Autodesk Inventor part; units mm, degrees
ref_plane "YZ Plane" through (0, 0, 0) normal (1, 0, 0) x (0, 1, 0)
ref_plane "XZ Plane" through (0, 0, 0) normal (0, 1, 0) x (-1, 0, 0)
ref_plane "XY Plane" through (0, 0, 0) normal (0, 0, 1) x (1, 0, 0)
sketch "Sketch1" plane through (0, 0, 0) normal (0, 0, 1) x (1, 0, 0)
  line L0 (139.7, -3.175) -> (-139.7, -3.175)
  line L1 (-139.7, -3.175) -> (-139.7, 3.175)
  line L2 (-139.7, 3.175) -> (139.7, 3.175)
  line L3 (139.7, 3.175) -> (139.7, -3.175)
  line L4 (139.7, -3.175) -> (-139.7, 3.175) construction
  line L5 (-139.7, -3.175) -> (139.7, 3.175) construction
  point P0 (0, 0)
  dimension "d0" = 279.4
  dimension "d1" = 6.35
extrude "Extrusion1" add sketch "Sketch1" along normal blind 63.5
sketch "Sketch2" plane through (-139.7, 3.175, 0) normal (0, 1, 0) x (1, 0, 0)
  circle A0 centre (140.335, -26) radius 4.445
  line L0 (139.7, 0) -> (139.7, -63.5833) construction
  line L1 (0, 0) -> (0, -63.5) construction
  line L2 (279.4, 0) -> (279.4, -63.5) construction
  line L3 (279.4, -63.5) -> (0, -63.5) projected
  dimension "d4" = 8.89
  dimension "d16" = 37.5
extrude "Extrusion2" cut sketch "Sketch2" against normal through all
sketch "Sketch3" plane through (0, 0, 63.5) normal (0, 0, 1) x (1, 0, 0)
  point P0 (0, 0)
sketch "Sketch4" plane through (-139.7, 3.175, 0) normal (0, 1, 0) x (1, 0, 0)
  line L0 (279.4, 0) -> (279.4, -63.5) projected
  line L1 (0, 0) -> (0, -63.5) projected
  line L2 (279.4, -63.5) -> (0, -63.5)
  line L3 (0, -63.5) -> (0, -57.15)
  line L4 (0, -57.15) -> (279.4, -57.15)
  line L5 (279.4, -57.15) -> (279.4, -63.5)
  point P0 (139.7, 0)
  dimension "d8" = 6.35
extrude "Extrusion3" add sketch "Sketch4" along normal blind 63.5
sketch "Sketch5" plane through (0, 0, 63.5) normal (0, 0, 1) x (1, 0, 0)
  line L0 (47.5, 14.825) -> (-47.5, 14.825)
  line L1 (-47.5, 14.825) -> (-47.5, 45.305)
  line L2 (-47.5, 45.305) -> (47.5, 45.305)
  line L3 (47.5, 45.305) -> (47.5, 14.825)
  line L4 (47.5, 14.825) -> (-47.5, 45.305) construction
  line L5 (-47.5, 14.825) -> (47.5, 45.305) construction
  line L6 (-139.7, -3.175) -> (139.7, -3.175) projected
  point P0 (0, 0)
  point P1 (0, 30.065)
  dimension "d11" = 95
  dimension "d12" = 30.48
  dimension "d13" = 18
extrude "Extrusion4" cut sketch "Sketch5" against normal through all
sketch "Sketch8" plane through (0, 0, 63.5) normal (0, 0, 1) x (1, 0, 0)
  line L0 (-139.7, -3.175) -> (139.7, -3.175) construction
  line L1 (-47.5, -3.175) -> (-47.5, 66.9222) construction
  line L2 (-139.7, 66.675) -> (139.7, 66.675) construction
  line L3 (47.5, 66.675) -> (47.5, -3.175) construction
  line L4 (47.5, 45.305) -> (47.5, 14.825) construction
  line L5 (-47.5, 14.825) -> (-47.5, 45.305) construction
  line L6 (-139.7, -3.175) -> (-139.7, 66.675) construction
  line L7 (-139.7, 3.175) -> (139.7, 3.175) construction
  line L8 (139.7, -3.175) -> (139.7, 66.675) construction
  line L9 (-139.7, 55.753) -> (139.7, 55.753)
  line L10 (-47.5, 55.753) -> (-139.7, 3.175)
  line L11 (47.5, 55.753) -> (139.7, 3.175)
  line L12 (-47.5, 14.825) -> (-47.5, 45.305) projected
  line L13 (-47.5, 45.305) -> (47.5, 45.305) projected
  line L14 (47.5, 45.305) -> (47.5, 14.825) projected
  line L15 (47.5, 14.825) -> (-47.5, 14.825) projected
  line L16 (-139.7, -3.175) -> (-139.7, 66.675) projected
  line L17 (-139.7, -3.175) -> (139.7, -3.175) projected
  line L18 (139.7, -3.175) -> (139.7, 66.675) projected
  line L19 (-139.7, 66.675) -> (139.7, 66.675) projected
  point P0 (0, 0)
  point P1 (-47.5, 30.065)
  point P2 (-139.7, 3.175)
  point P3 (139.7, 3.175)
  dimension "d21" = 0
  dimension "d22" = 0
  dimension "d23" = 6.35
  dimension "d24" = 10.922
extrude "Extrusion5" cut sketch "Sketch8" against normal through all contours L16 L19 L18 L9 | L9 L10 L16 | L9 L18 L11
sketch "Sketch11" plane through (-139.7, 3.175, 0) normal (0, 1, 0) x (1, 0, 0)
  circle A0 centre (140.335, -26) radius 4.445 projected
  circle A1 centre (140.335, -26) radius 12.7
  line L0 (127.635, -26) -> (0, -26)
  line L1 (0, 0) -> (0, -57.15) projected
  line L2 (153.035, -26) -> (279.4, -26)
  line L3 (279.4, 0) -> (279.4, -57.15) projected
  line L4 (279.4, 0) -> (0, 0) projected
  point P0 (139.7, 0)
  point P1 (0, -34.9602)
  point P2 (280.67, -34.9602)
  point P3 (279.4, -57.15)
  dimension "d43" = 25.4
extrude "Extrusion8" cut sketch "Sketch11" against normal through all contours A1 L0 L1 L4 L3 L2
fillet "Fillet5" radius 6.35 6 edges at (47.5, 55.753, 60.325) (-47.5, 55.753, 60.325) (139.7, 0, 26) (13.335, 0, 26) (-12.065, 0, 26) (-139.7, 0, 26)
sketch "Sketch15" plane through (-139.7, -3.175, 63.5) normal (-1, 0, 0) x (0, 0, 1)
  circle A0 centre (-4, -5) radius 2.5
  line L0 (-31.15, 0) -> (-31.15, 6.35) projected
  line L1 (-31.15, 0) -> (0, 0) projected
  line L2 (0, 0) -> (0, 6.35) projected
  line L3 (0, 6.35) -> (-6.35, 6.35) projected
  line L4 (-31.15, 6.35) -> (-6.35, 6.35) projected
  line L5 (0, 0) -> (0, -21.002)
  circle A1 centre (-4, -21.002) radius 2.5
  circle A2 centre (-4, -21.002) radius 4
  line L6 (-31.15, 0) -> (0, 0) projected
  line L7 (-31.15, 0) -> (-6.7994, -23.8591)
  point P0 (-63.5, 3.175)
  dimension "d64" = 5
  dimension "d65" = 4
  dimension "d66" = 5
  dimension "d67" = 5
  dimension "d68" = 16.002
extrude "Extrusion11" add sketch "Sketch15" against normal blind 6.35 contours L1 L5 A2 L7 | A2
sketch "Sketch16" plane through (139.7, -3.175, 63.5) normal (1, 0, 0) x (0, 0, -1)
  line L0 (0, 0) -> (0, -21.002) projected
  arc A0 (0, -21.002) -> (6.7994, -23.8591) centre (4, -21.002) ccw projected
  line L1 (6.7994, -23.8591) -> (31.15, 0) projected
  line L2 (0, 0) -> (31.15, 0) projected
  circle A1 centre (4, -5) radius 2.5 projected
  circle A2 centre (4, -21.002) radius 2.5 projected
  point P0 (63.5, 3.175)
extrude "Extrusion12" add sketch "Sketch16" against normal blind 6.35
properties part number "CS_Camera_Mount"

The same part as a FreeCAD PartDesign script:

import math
import FreeCAD as App
import Part
import Sketcher
from FreeCAD import Vector
Q = App.Units.Quantity


def edges_at(feature, points):
    """Names of the edges that pass closest to the given points."""
    edges = feature.Shape.Edges
    near = lambda p: min(range(len(edges)), key=lambda i: edges[i].distToShape(Part.Vertex(*p))[0])
    return sorted({f"Edge{near(p) + 1}" for p in points})


def add_polygon(sketch, points):
    """Adds a closed chain of lines whose ends are joined by coincident constraints."""
    first, n = sketch.GeometryCount, len(points)
    for a, b in zip(points, points[1:] + points[:1]):
        sketch.addGeometry(Part.LineSegment(App.Vector(*a, 0), App.Vector(*b, 0)), False)
    for i in range(n):
        sketch.addConstraint(Sketcher.Constraint("Coincident", first + i, 2, first + (i + 1) % n, 1))

doc = App.newDocument("Part")
body = doc.addObject("PartDesign::Body", "Body")

sketch1 = body.newObject("Sketcher::SketchObject", "Sketch")
sketch1.AttachmentSupport = (doc.getObject("XY_Plane"), [""])
sketch1.MapMode = "FlatFace"
add_polygon(sketch1, [(-140, -3), (140, -3), (140, 3), (-140, 3)])
sketch1.addConstraint([
    Sketcher.Constraint("Horizontal", 0),
    Sketcher.Constraint("Vertical", 1),
    Sketcher.Constraint("Horizontal", 2),
    Sketcher.Constraint("Vertical", 3),
    Sketcher.Constraint("Symmetric", 0, 2, 2, 2, -1, 1),
    Sketcher.Constraint("DistanceX", 0, 1, 0, 2, Q("11 in")),
    Sketcher.Constraint("DistanceY", 1, 1, 1, 2, Q("0.25 in")),
])
pad1 = body.newObject("PartDesign::Pad", "Pad")
pad1.Profile = sketch1
pad1.Length = Q("2.5 in")

sketch2 = body.newObject("Sketcher::SketchObject", "Sketch001")
sketch2.AttachmentSupport = (doc.getObject("XZ_Plane"), [""])
sketch2.MapMode = "FlatFace"
sketch2.AttachmentOffset = App.Placement(Vector(0, 0, -0.125 * 25.4), App.Rotation())
sketch2.addGeometry(Part.Circle(Vector(0.6, 26, 0), Vector(0, 0, 1), 4.4), False)
sketch2.addConstraint([
    Sketcher.Constraint("Diameter", 0, Q("0.35 in")),
    Sketcher.Constraint("DistanceX", -1, 1, 0, 3, Q("0.025 in")),
    Sketcher.Constraint("DistanceY", -1, 1, 0, 3, 26.0),
])
pocket1 = body.newObject("PartDesign::Pocket", "Pocket")
pocket1.Profile = sketch2
pocket1.Type = "ThroughAll"
pocket1.Reversed = True

sketch3 = body.newObject("Sketcher::SketchObject", "Sketch002")
sketch3.AttachmentSupport = (doc.getObject("XZ_Plane"), [""])
sketch3.MapMode = "FlatFace"
sketch3.AttachmentOffset = App.Placement(Vector(0, 0, -0.125 * 25.4), App.Rotation())
add_polygon(sketch3, [(140, 64), (140, 57), (-140, 57), (-140, 64)])
sketch3.addConstraint([
    Sketcher.Constraint("Vertical", 0),
    Sketcher.Constraint("Horizontal", 1),
    Sketcher.Constraint("Vertical", 2),
    Sketcher.Constraint("Horizontal", 3),
    Sketcher.Constraint("DistanceY", 0, 2, 0, 1, Q("0.25 in")),
    Sketcher.Constraint("DistanceX", 1, 2, 1, 1, Q("11 in")),
    Sketcher.Constraint("DistanceX", -1, 1, 0, 2, Q("5.5 in")),
    Sketcher.Constraint("DistanceY", -1, 1, 2, 2, Q("2.5 in")),
])
pad2 = body.newObject("PartDesign::Pad", "Pad001")
pad2.Profile = sketch3
pad2.Length = Q("2.5 in")
pad2.Reversed = True

sketch4 = body.newObject("Sketcher::SketchObject", "Sketch003")
sketch4.AttachmentSupport = (doc.getObject("XY_Plane"), [""])
sketch4.MapMode = "FlatFace"
sketch4.AttachmentOffset = App.Placement(Vector(0, 0, 2.5 * 25.4), App.Rotation())
add_polygon(sketch4, [(-48, 15), (48, 15), (48, 45), (-48, 45)])
sketch4.addConstraint([
    Sketcher.Constraint("Horizontal", 0),
    Sketcher.Constraint("Vertical", 1),
    Sketcher.Constraint("Horizontal", 2),
    Sketcher.Constraint("Vertical", 3),
    Sketcher.Constraint("DistanceY", 1, 1, 1, 2, Q("1.2 in")),
    Sketcher.Constraint("DistanceX", 0, 1, 0, 2, 95.0),
    Sketcher.Constraint("DistanceX", -1, 1, 0, 2, 47.5),
    Sketcher.Constraint("DistanceY", -1, 1, 0, 2, 14.825),
])
pocket2 = body.newObject("PartDesign::Pocket", "Pocket001")
pocket2.Profile = sketch4
pocket2.Type = "ThroughAll"

sketch5 = body.newObject("Sketcher::SketchObject", "Sketch004")
sketch5.AttachmentSupport = (doc.getObject("XY_Plane"), [""])
sketch5.MapMode = "FlatFace"
sketch5.AttachmentOffset = App.Placement(Vector(0, 0, 2.5 * 25.4), App.Rotation())
add_polygon(sketch5, [(-140, 67), (-140, 3), (-48, 56), (48, 56), (140, 3), (140, 67)])
sketch5.addConstraint([
    Sketcher.Constraint("Vertical", 0),
    Sketcher.Constraint("Horizontal", 2),
    Sketcher.Constraint("Vertical", 4),
    Sketcher.Constraint("Horizontal", 5),
    Sketcher.Constraint("Symmetric", 0, 2, 3, 2, -2),
    Sketcher.Constraint("Equal", 1, 3),
    Sketcher.Constraint("DistanceX", 5, 2, 5, 1, Q("11 in")),
    Sketcher.Constraint("DistanceY", 2, 2, 4, 2, Q("0.43 in")),
    Sketcher.Constraint("DistanceY", 0, 2, 0, 1, Q("2.5 in")),
    Sketcher.Constraint("DistanceY", -1, 1, 0, 2, Q("0.125 in")),
    Sketcher.Constraint("DistanceX", 2, 1, 2, 2, 95.0),
])
pocket3 = body.newObject("PartDesign::Pocket", "Pocket002")
pocket3.Profile = sketch5
pocket3.Type = "ThroughAll"

sketch6 = body.newObject("Sketcher::SketchObject", "Sketch005")
sketch6.AttachmentSupport = (doc.getObject("XZ_Plane"), [""])
sketch6.MapMode = "FlatFace"
sketch6.AttachmentOffset = App.Placement(Vector(0, 0, -0.125 * 25.4), App.Rotation())
sketch6.addGeometry([
    Part.ArcOfCircle(Part.Circle(Vector(1, 26, 0), Vector(0, 0, 1), 13), math.radians(180), math.radians(360)),
    Part.LineSegment(Vector(13, 26, 0), Vector(140, 26, 0)),
    Part.LineSegment(Vector(140, 26, 0), Vector(140, 0, 0)),
    Part.LineSegment(Vector(140, 0, 0), Vector(-140, 0, 0)),
    Part.LineSegment(Vector(-140, 0, 0), Vector(-140, 26, 0)),
    Part.LineSegment(Vector(-140, 26, 0), Vector(-12, 26, 0)),
], False)
sketch6.addConstraint([
    Sketcher.Constraint("Coincident", 0, 2, 1, 1),
    Sketcher.Constraint("Coincident", 1, 2, 2, 1),
    Sketcher.Constraint("Coincident", 2, 2, 3, 1),
    Sketcher.Constraint("Coincident", 3, 2, 4, 1),
    Sketcher.Constraint("Coincident", 4, 2, 5, 1),
    Sketcher.Constraint("Coincident", 5, 2, 0, 1),
    Sketcher.Constraint("Horizontal", 1),
    Sketcher.Constraint("Vertical", 2),
    Sketcher.Constraint("Horizontal", 3),
    Sketcher.Constraint("Vertical", 4),
    Sketcher.Constraint("Horizontal", 5),
    Sketcher.Constraint("Symmetric", 2, 2, 3, 2, -1, 1),
    Sketcher.Constraint("Horizontal", 1, 2, 4, 2),
    Sketcher.Constraint("Radius", 0, Q("0.5 in")),
    Sketcher.Constraint("DistanceX", 3, 2, 3, 1, Q("11 in")),
    Sketcher.Constraint("DistanceX", 1, 1, 1, 2, Q("4.975 in")),
    Sketcher.Constraint("DistanceY", 2, 2, 2, 1, 26.0),
    Sketcher.Constraint("DistanceY", -1, 1, 0, 3, 26.0),
])
pocket4 = body.newObject("PartDesign::Pocket", "Pocket003")
pocket4.Profile = sketch6
pocket4.Type = "ThroughAll"
pocket4.Reversed = True
doc.recompute()

fillet = body.newObject("PartDesign::Fillet", "Fillet")
fillet.Base = (pocket4, edges_at(pocket4, [
    (47.5, 55.753, 60.325),
    (-47.5, 55.753, 60.325),
    (139.7, 0, 26),
    (13.335, 0, 26),
    (-12.065, 0, 26),
    (-139.7, 0, 26),
]))
fillet.Radius = Q("0.25 in")

sketch7 = body.newObject("Sketcher::SketchObject", "Sketch006")
sketch7.AttachmentSupport = (doc.getObject("YZ_Plane"), [""])
sketch7.MapMode = "FlatFace"
sketch7.AttachmentOffset = App.Placement(Vector(0, 0, -5.5 * 25.4), App.Rotation())
sketch7.addGeometry([
    Part.LineSegment(Vector(-3.2, 63.5, 0), Vector(-3.2, 32.4, 0)),
    Part.LineSegment(Vector(-3.2, 32.4, 0), Vector(-27, 56.7, 0)),
    Part.ArcOfCircle(Part.Circle(Vector(-24.2, 59.5, 0), Vector(0, 0, 1), 4), math.radians(90), math.radians(224)),
    Part.LineSegment(Vector(-24.2, 63.5, 0), Vector(-3.2, 63.5, 0)),
    Part.Circle(Vector(-8.2, 59.5, 0), Vector(0, 0, 1), 2.5),
    Part.Circle(Vector(-24.2, 59.5, 0), Vector(0, 0, 1), 2.5),
], False)
sketch7.addConstraint([
    Sketcher.Constraint("Coincident", 0, 2, 1, 1),
    Sketcher.Constraint("Tangent", 1, 2, 2, 2),
    Sketcher.Constraint("Tangent", 2, 1, 3, 1),
    Sketcher.Constraint("Coincident", 3, 2, 0, 1),
    Sketcher.Constraint("Vertical", 0),
    Sketcher.Constraint("Horizontal", 3),
    Sketcher.Constraint("Coincident", 5, 3, 2, 3),
    Sketcher.Constraint("Equal", 4, 5),
    Sketcher.Constraint("Horizontal", 2, 3, 4, 3),
    Sketcher.Constraint("Diameter", 4, 5.0),
    Sketcher.Constraint("Radius", 2, 4.0),
    Sketcher.Constraint("DistanceX", 2, 3, 4, 3, Q("0.63 in")),
    Sketcher.Constraint("DistanceY", -1, 1, 2, 1, Q("2.5 in")),
    Sketcher.Constraint("DistanceX", 4, 3, 0, 2, 5.0),
    Sketcher.Constraint("DistanceX", 0, 2, -1, 1, Q("0.125 in")),
    Sketcher.Constraint("DistanceY", 0, 2, 0, 1, 31.15),
])
pad3 = body.newObject("PartDesign::Pad", "Pad002")
pad3.Profile = sketch7
pad3.Length = Q("0.25 in")

sketch8 = body.newObject("Sketcher::SketchObject", "Sketch007")
sketch8.AttachmentSupport = (doc.getObject("YZ_Plane"), [""])
sketch8.MapMode = "FlatFace"
sketch8.AttachmentOffset = App.Placement(Vector(0, 0, 5.5 * 25.4), App.Rotation())
sketch8.addGeometry([
    Part.LineSegment(Vector(-3.2, 32.4, 0), Vector(-3.2, 63.5, 0)),
    Part.LineSegment(Vector(-3.2, 63.5, 0), Vector(-24.2, 63.5, 0)),
    Part.ArcOfCircle(Part.Circle(Vector(-24.2, 59.5, 0), Vector(0, 0, 1), 4), math.radians(90), math.radians(224)),
    Part.LineSegment(Vector(-27, 56.7, 0), Vector(-3.2, 32.4, 0)),
    Part.Circle(Vector(-24.2, 59.5, 0), Vector(0, 0, 1), 2.5),
    Part.Circle(Vector(-8.2, 59.5, 0), Vector(0, 0, 1), 2.5),
], False)
sketch8.addConstraint([
    Sketcher.Constraint("Coincident", 0, 2, 1, 1),
    Sketcher.Constraint("Tangent", 1, 2, 2, 1),
    Sketcher.Constraint("Tangent", 2, 2, 3, 1),
    Sketcher.Constraint("Coincident", 3, 2, 0, 1),
    Sketcher.Constraint("Vertical", 0),
    Sketcher.Constraint("Horizontal", 1),
    Sketcher.Constraint("Coincident", 4, 3, 2, 3),
    Sketcher.Constraint("Equal", 4, 5),
    Sketcher.Constraint("Horizontal", 4, 3, 5, 3),
    Sketcher.Constraint("DistanceY", -1, 1, 0, 2, Q("2.5 in")),
    Sketcher.Constraint("Diameter", 4, 5.0),
    Sketcher.Constraint("Radius", 2, 4.0),
    Sketcher.Constraint("DistanceX", 2, 3, 5, 3, Q("0.63 in")),
    Sketcher.Constraint("DistanceX", 0, 2, -1, 1, Q("0.125 in")),
    Sketcher.Constraint("DistanceX", 1, 2, 1, 1, 21.002),
    Sketcher.Constraint("DistanceY", 0, 1, 0, 2, 31.15),
])
pad4 = body.newObject("PartDesign::Pad", "Pad003")
pad4.Profile = sketch8
pad4.Length = Q("0.25 in")
pad4.Reversed = True

doc.recompute()
